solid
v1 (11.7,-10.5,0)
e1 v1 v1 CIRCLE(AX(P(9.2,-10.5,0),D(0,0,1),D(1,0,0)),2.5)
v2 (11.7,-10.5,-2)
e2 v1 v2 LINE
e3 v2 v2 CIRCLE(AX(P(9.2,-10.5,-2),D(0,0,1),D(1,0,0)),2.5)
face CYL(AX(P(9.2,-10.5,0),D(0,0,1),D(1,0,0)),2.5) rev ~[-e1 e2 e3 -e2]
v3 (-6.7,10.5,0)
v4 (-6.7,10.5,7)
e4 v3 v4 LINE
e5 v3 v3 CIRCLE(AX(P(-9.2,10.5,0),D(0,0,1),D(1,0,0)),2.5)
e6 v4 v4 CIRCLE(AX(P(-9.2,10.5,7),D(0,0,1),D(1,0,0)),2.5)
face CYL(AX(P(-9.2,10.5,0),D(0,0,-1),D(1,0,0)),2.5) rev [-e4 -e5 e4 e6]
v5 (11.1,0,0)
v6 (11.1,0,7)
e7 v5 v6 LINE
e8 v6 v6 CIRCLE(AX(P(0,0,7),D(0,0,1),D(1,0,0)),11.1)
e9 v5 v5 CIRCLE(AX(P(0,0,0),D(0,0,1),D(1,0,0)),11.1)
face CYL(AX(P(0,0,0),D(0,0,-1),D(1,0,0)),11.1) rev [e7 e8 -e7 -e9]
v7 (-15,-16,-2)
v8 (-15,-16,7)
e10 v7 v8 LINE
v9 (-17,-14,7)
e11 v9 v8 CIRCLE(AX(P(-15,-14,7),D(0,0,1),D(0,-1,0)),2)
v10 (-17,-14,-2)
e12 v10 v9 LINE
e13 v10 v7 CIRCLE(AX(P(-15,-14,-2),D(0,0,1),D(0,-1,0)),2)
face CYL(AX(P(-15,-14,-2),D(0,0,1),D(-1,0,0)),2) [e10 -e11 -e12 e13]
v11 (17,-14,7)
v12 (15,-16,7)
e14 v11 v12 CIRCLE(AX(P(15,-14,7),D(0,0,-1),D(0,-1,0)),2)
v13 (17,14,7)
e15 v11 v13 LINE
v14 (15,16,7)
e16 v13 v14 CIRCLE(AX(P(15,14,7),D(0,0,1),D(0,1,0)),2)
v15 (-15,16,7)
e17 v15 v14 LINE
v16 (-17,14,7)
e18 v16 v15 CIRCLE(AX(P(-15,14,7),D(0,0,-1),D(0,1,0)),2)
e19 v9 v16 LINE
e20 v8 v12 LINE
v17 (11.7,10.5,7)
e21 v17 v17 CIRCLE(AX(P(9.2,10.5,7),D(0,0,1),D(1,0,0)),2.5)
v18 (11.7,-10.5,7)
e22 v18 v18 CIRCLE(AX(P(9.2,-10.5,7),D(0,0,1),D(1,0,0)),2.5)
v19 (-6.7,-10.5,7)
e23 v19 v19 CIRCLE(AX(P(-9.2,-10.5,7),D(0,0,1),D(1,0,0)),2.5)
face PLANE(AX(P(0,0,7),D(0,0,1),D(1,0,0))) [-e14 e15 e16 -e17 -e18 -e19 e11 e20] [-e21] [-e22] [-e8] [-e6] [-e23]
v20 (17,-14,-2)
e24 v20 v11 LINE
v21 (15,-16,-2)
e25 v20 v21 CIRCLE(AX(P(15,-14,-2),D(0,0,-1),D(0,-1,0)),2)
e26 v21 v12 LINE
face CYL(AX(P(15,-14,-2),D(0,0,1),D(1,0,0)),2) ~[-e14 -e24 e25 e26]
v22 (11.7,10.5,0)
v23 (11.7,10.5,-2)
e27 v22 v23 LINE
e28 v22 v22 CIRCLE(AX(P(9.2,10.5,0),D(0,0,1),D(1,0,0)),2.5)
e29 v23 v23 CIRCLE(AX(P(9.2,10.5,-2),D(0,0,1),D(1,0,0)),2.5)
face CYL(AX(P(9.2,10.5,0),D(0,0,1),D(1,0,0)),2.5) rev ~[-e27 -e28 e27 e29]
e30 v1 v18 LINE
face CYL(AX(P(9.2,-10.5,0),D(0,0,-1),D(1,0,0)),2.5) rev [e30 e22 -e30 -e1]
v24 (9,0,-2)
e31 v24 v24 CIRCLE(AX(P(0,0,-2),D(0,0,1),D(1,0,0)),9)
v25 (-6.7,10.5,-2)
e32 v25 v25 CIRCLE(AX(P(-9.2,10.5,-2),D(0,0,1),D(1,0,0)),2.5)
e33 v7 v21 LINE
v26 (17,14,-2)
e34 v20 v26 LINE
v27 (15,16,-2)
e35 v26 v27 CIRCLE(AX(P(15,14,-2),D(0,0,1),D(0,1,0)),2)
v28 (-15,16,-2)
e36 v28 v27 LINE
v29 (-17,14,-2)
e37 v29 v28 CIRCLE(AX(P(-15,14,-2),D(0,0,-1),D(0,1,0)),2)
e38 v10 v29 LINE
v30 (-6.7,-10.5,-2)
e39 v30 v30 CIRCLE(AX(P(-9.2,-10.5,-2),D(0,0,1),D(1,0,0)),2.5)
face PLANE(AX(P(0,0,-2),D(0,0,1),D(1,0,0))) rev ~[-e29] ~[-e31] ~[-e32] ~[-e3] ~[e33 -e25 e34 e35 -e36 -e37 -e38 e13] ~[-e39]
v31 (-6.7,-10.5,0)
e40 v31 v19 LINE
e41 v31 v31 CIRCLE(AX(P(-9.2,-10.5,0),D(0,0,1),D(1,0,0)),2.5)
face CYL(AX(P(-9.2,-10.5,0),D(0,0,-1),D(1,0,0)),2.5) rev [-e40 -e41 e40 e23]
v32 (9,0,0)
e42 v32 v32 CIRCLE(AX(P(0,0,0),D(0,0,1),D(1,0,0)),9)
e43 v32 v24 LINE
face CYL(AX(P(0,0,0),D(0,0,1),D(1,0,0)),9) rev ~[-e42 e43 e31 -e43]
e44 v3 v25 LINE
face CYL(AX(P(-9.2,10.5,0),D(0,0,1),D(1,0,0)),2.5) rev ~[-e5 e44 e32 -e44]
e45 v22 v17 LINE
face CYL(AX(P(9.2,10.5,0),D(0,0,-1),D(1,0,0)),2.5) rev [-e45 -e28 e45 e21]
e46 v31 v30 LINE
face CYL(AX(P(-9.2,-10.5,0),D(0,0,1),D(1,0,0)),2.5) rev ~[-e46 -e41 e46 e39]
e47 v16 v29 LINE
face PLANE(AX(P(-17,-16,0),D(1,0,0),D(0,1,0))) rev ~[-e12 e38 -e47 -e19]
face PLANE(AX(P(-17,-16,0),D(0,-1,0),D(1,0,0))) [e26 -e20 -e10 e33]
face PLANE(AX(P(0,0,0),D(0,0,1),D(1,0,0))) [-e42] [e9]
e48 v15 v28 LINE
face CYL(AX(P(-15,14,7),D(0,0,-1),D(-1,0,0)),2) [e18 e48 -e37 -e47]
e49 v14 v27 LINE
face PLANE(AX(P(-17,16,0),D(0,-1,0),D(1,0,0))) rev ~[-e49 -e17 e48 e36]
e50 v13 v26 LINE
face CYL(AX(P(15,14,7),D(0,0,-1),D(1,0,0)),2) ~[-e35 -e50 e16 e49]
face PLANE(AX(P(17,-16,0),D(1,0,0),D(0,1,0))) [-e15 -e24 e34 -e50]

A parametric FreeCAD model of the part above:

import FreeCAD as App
import Part
import Sketcher

V = App.Vector


def edges_at(feature, points):
    """Names of the edges that pass closest to the given points."""
    edges = feature.Shape.Edges
    near = lambda p: min(range(len(edges)), key=lambda i: edges[i].distToShape(Part.Vertex(*p))[0])
    return sorted({f"Edge{near(p) + 1}" for p in points})

doc = App.newDocument("Part")
body = doc.addObject("PartDesign::Body", "Body")

sketch1 = body.newObject("Sketcher::SketchObject", "Sketch")
sketch1.AttachmentSupport = (doc.getObject("XY_Plane"), [""])
sketch1.MapMode = "FlatFace"
sketch1.addGeometry([
    Part.LineSegment(V(-17, 16, 0), V(-17, -16, 0)),
    Part.LineSegment(V(-17, -16, 0), V(17, -16, 0)),
    Part.LineSegment(V(17, -16, 0), V(17, 16, 0)),
    Part.LineSegment(V(17, 16, 0), V(-17, 16, 0)),
    Part.Circle(V(-9.2, -10.5, 0), V(0, 0, 1), 2.5),
    Part.Circle(V(9.2, -10.5, 0), V(0, 0, 1), 2.5),
    Part.Circle(V(-9.2, 10.5, 0), V(0, 0, 1), 2.5),
    Part.Circle(V(0, 0, 0), V(0, 0, 1), 11.1),
    Part.Circle(V(9.2, 10.5, 0), V(0, 0, 1), 2.5),
], False)
sketch1.addConstraint([
    Sketcher.Constraint("Coincident", 0, 2, 1, 1),
    Sketcher.Constraint("Coincident", 1, 2, 2, 1),
    Sketcher.Constraint("Coincident", 2, 2, 3, 1),
    Sketcher.Constraint("Coincident", 3, 2, 0, 1),
    Sketcher.Constraint("Vertical", 0),
    Sketcher.Constraint("Horizontal", 1),
    Sketcher.Constraint("Vertical", 2),
    Sketcher.Constraint("Horizontal", 3),
    Sketcher.Constraint("Coincident", 7, 3, -1, 1),
    Sketcher.Constraint("Equal", 4, 5),
    Sketcher.Constraint("Equal", 5, 6),
    Sketcher.Constraint("Equal", 6, 8),
    Sketcher.Constraint("Symmetric", 5, 3, 6, 3, -1, 1),
    Sketcher.Constraint("Symmetric", 4, 3, 8, 3, -1, 1),
    Sketcher.Constraint("Symmetric", 0, 2, 2, 2, -1, 1),
    Sketcher.Constraint("Symmetric", 4, 3, 5, 3, -2),
    Sketcher.Constraint("Diameter", 4, 5.0),
    Sketcher.Constraint("Diameter", 7, 22.2),
    Sketcher.Constraint("DistanceX", 1, 1, 1, 2, 34.0),
    Sketcher.Constraint("DistanceY", 0, 2, 0, 1, 32.0),
    Sketcher.Constraint("DistanceY", 4, 3, 6, 3, 21.0),
    Sketcher.Constraint("DistanceX", 4, 3, -1, 1, 9.2),
])
pad1 = body.newObject("PartDesign::Pad", "Pad")
pad1.Profile = sketch1
pad1.Length = 7

sketch2 = body.newObject("Sketcher::SketchObject", "Sketch001")
sketch2.AttachmentSupport = (doc.getObject("XY_Plane"), [""])
sketch2.MapMode = "FlatFace"
sketch2.addGeometry([
    Part.LineSegment(V(-17, 16, 0), V(-17, -16, 0)),
    Part.LineSegment(V(-17, -16, 0), V(17, -16, 0)),
    Part.LineSegment(V(17, -16, 0), V(17, 16, 0)),
    Part.LineSegment(V(17, 16, 0), V(-17, 16, 0)),
    Part.Circle(V(-9.2, -10.5, 0), V(0, 0, 1), 2.5),
    Part.Circle(V(9.2, -10.5, 0), V(0, 0, 1), 2.5),
    Part.Circle(V(-9.2, 10.5, 0), V(0, 0, 1), 2.5),
    Part.Circle(V(0, 0, 0), V(0, 0, 1), 9),
    Part.Circle(V(9.2, 10.5, 0), V(0, 0, 1), 2.5),
], False)
sketch2.addConstraint([
    Sketcher.Constraint("Coincident", 0, 2, 1, 1),
    Sketcher.Constraint("Coincident", 1, 2, 2, 1),
    Sketcher.Constraint("Coincident", 2, 2, 3, 1),
    Sketcher.Constraint("Coincident", 3, 2, 0, 1),
    Sketcher.Constraint("Vertical", 0),
    Sketcher.Constraint("Horizontal", 1),
    Sketcher.Constraint("Vertical", 2),
    Sketcher.Constraint("Horizontal", 3),
    Sketcher.Constraint("Coincident", 7, 3, -1, 1),
    Sketcher.Constraint("Equal", 4, 5),
    Sketcher.Constraint("Equal", 5, 6),
    Sketcher.Constraint("Equal", 6, 8),
    Sketcher.Constraint("Symmetric", 5, 3, 6, 3, -1, 1),
    Sketcher.Constraint("Symmetric", 4, 3, 8, 3, -1, 1),
    Sketcher.Constraint("Symmetric", 0, 2, 2, 2, -1, 1),
    Sketcher.Constraint("Symmetric", 4, 3, 5, 3, -2),
    Sketcher.Constraint("Diameter", 4, 5.0),
    Sketcher.Constraint("Diameter", 7, 18.0),
    Sketcher.Constraint("DistanceX", 1, 1, 1, 2, 34.0),
    Sketcher.Constraint("DistanceY", 0, 2, 0, 1, 32.0),
    Sketcher.Constraint("DistanceY", 4, 3, 6, 3, 21.0),
    Sketcher.Constraint("DistanceX", 4, 3, -1, 1, 9.2),
])
pad2 = body.newObject("PartDesign::Pad", "Pad001")
pad2.Profile = sketch2
pad2.Length = 2
pad2.Reversed = True
doc.recompute()

fillet = body.newObject("PartDesign::Fillet", "Fillet")
fillet.Base = (pad2, edges_at(pad2, [
    (17, -16, 2.5),
    (17, -16, 2.5),
    (-17, -16, 2.5),
    (-17, -16, 2.5),
    (17, 16, 2.5),
    (17, 16, 2.5),
    (-17, 16, 2.5),
    (-17, 16, 2.5),
]))
fillet.Radius = 2

doc.recompute()
